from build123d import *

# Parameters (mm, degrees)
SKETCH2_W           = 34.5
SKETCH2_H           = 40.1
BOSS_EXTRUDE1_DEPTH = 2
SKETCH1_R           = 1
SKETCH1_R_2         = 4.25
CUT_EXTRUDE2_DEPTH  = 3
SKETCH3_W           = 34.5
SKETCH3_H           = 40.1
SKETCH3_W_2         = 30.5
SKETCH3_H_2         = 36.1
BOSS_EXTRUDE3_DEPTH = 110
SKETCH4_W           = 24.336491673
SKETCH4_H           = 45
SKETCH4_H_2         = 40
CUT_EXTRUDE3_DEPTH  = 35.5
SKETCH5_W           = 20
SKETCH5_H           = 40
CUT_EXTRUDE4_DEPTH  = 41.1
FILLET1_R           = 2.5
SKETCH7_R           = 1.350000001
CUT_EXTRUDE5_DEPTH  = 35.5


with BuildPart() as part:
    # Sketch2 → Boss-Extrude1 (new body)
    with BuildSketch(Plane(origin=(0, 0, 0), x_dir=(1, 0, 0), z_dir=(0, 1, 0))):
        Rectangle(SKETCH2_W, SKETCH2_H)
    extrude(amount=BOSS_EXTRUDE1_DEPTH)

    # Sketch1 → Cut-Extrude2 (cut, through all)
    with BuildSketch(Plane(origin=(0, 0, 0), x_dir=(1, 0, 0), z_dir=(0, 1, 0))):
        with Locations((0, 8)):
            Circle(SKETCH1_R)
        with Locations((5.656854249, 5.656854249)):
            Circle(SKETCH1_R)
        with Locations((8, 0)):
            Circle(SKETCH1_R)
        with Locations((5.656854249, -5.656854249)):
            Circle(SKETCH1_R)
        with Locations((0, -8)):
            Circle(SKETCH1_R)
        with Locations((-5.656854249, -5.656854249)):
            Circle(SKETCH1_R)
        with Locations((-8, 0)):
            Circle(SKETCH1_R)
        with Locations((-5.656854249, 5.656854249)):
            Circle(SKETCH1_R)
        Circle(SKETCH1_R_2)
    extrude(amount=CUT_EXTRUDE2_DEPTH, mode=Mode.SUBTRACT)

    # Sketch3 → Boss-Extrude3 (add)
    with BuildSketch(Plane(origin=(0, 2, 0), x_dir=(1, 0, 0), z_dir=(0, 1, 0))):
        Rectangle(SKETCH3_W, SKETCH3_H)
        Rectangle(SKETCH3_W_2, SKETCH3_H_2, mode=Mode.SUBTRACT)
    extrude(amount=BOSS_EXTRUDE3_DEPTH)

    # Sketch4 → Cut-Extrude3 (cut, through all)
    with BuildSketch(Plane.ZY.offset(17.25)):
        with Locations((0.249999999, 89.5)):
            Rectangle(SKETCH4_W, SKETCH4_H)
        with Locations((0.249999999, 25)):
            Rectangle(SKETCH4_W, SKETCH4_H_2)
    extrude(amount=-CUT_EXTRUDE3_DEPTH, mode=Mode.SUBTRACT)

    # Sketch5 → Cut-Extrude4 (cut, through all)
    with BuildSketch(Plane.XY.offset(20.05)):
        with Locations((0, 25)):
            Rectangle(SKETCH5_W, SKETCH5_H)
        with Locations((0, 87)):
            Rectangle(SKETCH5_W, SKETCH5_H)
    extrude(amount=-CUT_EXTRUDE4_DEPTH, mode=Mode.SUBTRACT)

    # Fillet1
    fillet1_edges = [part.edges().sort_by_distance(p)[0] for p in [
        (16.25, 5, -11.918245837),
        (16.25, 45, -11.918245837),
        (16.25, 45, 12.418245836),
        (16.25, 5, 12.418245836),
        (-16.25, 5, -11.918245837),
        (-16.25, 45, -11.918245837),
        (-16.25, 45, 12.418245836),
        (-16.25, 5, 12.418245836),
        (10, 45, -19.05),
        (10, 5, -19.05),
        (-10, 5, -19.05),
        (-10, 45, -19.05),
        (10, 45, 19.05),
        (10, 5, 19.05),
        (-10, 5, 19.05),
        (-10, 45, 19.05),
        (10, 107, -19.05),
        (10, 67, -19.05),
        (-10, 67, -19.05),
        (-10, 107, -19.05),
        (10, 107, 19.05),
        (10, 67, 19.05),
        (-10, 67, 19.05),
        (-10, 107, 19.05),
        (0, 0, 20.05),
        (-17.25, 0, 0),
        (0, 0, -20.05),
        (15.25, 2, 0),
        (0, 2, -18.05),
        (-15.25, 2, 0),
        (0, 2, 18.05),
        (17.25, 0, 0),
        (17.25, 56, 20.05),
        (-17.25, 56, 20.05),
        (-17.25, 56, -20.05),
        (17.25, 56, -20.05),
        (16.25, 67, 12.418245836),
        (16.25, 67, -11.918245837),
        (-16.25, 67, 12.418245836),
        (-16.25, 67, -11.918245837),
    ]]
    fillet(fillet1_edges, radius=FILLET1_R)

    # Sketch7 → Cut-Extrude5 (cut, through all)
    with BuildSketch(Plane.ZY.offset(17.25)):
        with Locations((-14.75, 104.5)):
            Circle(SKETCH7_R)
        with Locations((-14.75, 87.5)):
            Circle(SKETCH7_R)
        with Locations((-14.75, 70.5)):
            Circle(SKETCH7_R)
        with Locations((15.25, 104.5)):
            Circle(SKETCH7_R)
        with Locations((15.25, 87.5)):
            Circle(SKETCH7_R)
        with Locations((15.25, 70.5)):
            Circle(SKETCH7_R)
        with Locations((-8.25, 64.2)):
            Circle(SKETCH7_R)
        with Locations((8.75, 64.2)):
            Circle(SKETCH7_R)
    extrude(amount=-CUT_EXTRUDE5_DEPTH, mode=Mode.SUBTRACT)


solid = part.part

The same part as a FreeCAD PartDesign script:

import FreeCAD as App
import Part
import Sketcher


def edges_at(feature, points):
    """Names of the edges that pass closest to the given points."""
    edges = feature.Shape.Edges
    near = lambda p: min(range(len(edges)), key=lambda i: edges[i].distToShape(Part.Vertex(*p))[0])
    return sorted({f"Edge{near(p) + 1}" for p in points})

doc = App.newDocument("Part")
body = doc.addObject("PartDesign::Body", "Body")

# Sketch on XZ plane
sketch1 = body.newObject("Sketcher::SketchObject", "Sketch")
sketch1.AttachmentSupport = (doc.getObject("XZ_Plane"), [""])
sketch1.MapMode = "FlatFace"
sketch1.addGeometry([
    Part.LineSegment(App.Vector(-17.25, -20.05, 0), App.Vector(-17.25, 20.05, 0)),
    Part.LineSegment(App.Vector(-17.25, 20.05, 0), App.Vector(17.25, 20.05, 0)),
    Part.LineSegment(App.Vector(17.25, 20.05, 0), App.Vector(17.25, -20.05, 0)),
    Part.LineSegment(App.Vector(17.25, -20.05, 0), App.Vector(-17.25, -20.05, 0)),
], False)
sketch1.addConstraint([
    Sketcher.Constraint("Coincident", 0, 2, 1, 1),
    Sketcher.Constraint("Coincident", 1, 2, 2, 1),
    Sketcher.Constraint("Coincident", 2, 2, 3, 1),
    Sketcher.Constraint("Coincident", 3, 2, 0, 1),
    Sketcher.Constraint("Vertical", 0),
    Sketcher.Constraint("Horizontal", 1),
    Sketcher.Constraint("Vertical", 2),
    Sketcher.Constraint("Horizontal", 3),
    Sketcher.Constraint("Symmetric", 0, 2, 2, 2, -1, 1),
    Sketcher.Constraint("DistanceX", 1, 1, 1, 2, 34.5),
    Sketcher.Constraint("DistanceY", 0, 1, 0, 2, 40.1),
])
pad1 = body.newObject("PartDesign::Pad", "Pad")
pad1.Profile = sketch1
pad1.Length = 2
pad1.Reversed = True

# Sketch on XZ plane
sketch2 = body.newObject("Sketcher::SketchObject", "Sketch001")
sketch2.AttachmentSupport = (doc.getObject("XZ_Plane"), [""])
sketch2.MapMode = "FlatFace"
sketch2.addGeometry([
    Part.Circle(App.Vector(0, -8, 0), App.Vector(0, 0, 1), 1),  # 0
    Part.Circle(App.Vector(5.656854, -5.656854, 0), App.Vector(0, 0, 1), 1),  # 1
    Part.Circle(App.Vector(8, 0, 0), App.Vector(0, 0, 1), 1),  # 2
    Part.Circle(App.Vector(5.656854, 5.656854, 0), App.Vector(0, 0, 1), 1),  # 3
    Part.Circle(App.Vector(0, 8, 0), App.Vector(0, 0, 1), 1),  # 4
    Part.Circle(App.Vector(-5.656854, 5.656854, 0), App.Vector(0, 0, 1), 1),  # 5
    Part.Circle(App.Vector(-8, 0, 0), App.Vector(0, 0, 1), 1),  # 6
    Part.Circle(App.Vector(-5.656854, -5.656854, 0), App.Vector(0, 0, 1), 1),  # 7
    Part.Circle(App.Vector(0, 0, 0), App.Vector(0, 0, 1), 4.25),  # 8
], False)
sketch2.addConstraint([
    Sketcher.Constraint("Coincident", 8, 3, -1, 1),
    Sketcher.Constraint("Equal", 0, 1),
    Sketcher.Constraint("Equal", 1, 2),
    Sketcher.Constraint("Equal", 2, 3),
    Sketcher.Constraint("Equal", 3, 4),
    Sketcher.Constraint("Equal", 4, 5),
    Sketcher.Constraint("Equal", 5, 6),
    Sketcher.Constraint("Equal", 6, 7),
    Sketcher.Constraint("Symmetric", 0, 3, 4, 3, -1, 1),
    Sketcher.Constraint("Symmetric", 1, 3, 5, 3, -1, 1),
    Sketcher.Constraint("Symmetric", 2, 3, 6, 3, -1, 1),
    Sketcher.Constraint("Symmetric", 3, 3, 7, 3, -1, 1),
    Sketcher.Constraint("Symmetric", 3, 3, 5, 3, -2),
    Sketcher.Constraint("PointOnObject", 0, 3, -2),
    Sketcher.Constraint("PointOnObject", 2, 3, -1),
    Sketcher.Constraint("Diameter", 0, 2.0),
    Sketcher.Constraint("Diameter", 8, 8.5),
    Sketcher.Constraint("DistanceY", 0, 3, -1, 1, 8.0),
    Sketcher.Constraint("DistanceX", -1, 1, 2, 3, 8.0),
    Sketcher.Constraint("DistanceY", 1, 3, 3, 3, 11.313708),
    Sketcher.Constraint("DistanceX", 5, 3, 3, 3, 11.313708),
])
pocket1 = body.newObject("PartDesign::Pocket", "Pocket")
pocket1.Profile = sketch2
pocket1.Type = "ThroughAll"

# Sketch on XZ plane
sketch3 = body.newObject("Sketcher::SketchObject", "Sketch002")
sketch3.AttachmentSupport = (doc.getObject("XZ_Plane"), [""])
sketch3.MapMode = "FlatFace"
sketch3.AttachmentOffset = App.Placement(App.Vector(0, 0, -2), App.Rotation())
sketch3.addGeometry([
    Part.LineSegment(App.Vector(-17.25, -20.05, 0), App.Vector(-17.25, 20.05, 0)),  # 0
    Part.LineSegment(App.Vector(-17.25, 20.05, 0), App.Vector(17.25, 20.05, 0)),  # 1
    Part.LineSegment(App.Vector(17.25, 20.05, 0), App.Vector(17.25, -20.05, 0)),  # 2
    Part.LineSegment(App.Vector(17.25, -20.05, 0), App.Vector(-17.25, -20.05, 0)),  # 3
    Part.LineSegment(App.Vector(15.25, 18.05, 0), App.Vector(-15.25, 18.05, 0)),  # 4
    Part.LineSegment(App.Vector(-15.25, 18.05, 0), App.Vector(-15.25, -18.05, 0)),  # 5
    Part.LineSegment(App.Vector(-15.25, -18.05, 0), App.Vector(15.25, -18.05, 0)),  # 6
    Part.LineSegment(App.Vector(15.25, -18.05, 0), App.Vector(15.25, 18.05, 0)),  # 7
], False)
sketch3.addConstraint([
    Sketcher.Constraint("Coincident", 0, 2, 1, 1),
    Sketcher.Constraint("Coincident", 1, 2, 2, 1),
    Sketcher.Constraint("Coincident", 2, 2, 3, 1),
    Sketcher.Constraint("Coincident", 3, 2, 0, 1),
    Sketcher.Constraint("Coincident", 4, 2, 5, 1),
    Sketcher.Constraint("Coincident", 5, 2, 6, 1),
    Sketcher.Constraint("Coincident", 6, 2, 7, 1),
    Sketcher.Constraint("Coincident", 7, 2, 4, 1),
    Sketcher.Constraint("Vertical", 0),
    Sketcher.Constraint("Horizontal", 1),
    Sketcher.Constraint("Vertical", 2),
    Sketcher.Constraint("Horizontal", 3),
    Sketcher.Constraint("Horizontal", 4),
    Sketcher.Constraint("Vertical", 5),
    Sketcher.Constraint("Horizontal", 6),
    Sketcher.Constraint("Vertical", 7),
    Sketcher.Constraint("Symmetric", 0, 2, 2, 2, -1, 1),
    Sketcher.Constraint("Symmetric", 4, 2, 6, 2, -1, 1),
    Sketcher.Constraint("DistanceX", 1, 1, 1, 2, 34.5),
    Sketcher.Constraint("DistanceX", 4, 2, 4, 1, 30.5),
    Sketcher.Constraint("DistanceY", 0, 1, 0, 2, 40.1),
    Sketcher.Constraint("DistanceY", 5, 2, 5, 1, 36.1),
])
pad2 = body.newObject("PartDesign::Pad", "Pad001")
pad2.Profile = sketch3
pad2.Length = 110
pad2.Reversed = True

# Sketch on YZ plane
sketch4 = body.newObject("Sketcher::SketchObject", "Sketch003")
sketch4.AttachmentSupport = (doc.getObject("YZ_Plane"), [""])
sketch4.MapMode = "FlatFace"
sketch4.AttachmentOffset = App.Placement(App.Vector(0, 0, -17.25), App.Rotation())
sketch4.addGeometry([
    Part.LineSegment(App.Vector(112, -11.918246, 0), App.Vector(67, -11.918246, 0)),  # 0
    Part.LineSegment(App.Vector(67, -11.918246, 0), App.Vector(67, 12.418246, 0)),  # 1
    Part.LineSegment(App.Vector(67, 12.418246, 0), App.Vector(112, 12.418246, 0)),  # 2
    Part.LineSegment(App.Vector(112, 12.418246, 0), App.Vector(112, -11.918246, 0)),  # 3
    Part.LineSegment(App.Vector(45, -11.918246, 0), App.Vector(5, -11.918246, 0)),  # 4
    Part.LineSegment(App.Vector(5, -11.918246, 0), App.Vector(5, 12.418246, 0)),  # 5
    Part.LineSegment(App.Vector(5, 12.418246, 0), App.Vector(45, 12.418246, 0)),  # 6
    Part.LineSegment(App.Vector(45, 12.418246, 0), App.Vector(45, -11.918246, 0)),  # 7
], False)
sketch4.addConstraint([
    Sketcher.Constraint("Coincident", 0, 2, 1, 1),
    Sketcher.Constraint("Coincident", 1, 2, 2, 1),
    Sketcher.Constraint("Coincident", 2, 2, 3, 1),
    Sketcher.Constraint("Coincident", 3, 2, 0, 1),
    Sketcher.Constraint("Coincident", 4, 2, 5, 1),
    Sketcher.Constraint("Coincident", 5, 2, 6, 1),
    Sketcher.Constraint("Coincident", 6, 2, 7, 1),
    Sketcher.Constraint("Coincident", 7, 2, 4, 1),
    Sketcher.Constraint("Horizontal", 0),
    Sketcher.Constraint("Vertical", 1),
    Sketcher.Constraint("Horizontal", 2),
    Sketcher.Constraint("Vertical", 3),
    Sketcher.Constraint("Horizontal", 4),
    Sketcher.Constraint("Vertical", 5),
    Sketcher.Constraint("Horizontal", 6),
    Sketcher.Constraint("Vertical", 7),
    Sketcher.Constraint("Horizontal", 3, 2, 4, 2),
    Sketcher.Constraint("Horizontal", 2, 2, 5, 2),
    Sketcher.Constraint("DistanceX", 0, 2, 0, 1, 45.0),
    Sketcher.Constraint("DistanceX", 4, 2, 4, 1, 40.0),
    Sketcher.Constraint("DistanceX", -1, 1, 0, 2, 67.0),
    Sketcher.Constraint("DistanceX", -1, 1, 4, 2, 5.0),
    Sketcher.Constraint("DistanceY", 1, 1, 1, 2, 24.336492),
    Sketcher.Constraint("DistanceY", 0, 2, -1, 1, 11.918246),
])
pocket2 = body.newObject("PartDesign::Pocket", "Pocket001")
pocket2.Profile = sketch4
pocket2.Type = "ThroughAll"
pocket2.Reversed = True

# Sketch on XY plane
sketch5 = body.newObject("Sketcher::SketchObject", "Sketch004")
sketch5.AttachmentSupport = (doc.getObject("XY_Plane"), [""])
sketch5.MapMode = "FlatFace"
sketch5.AttachmentOffset = App.Placement(App.Vector(0, 0, 20.05), App.Rotation())
sketch5.addGeometry([
    Part.LineSegment(App.Vector(-10, 45, 0), App.Vector(-10, 5, 0)),  # 0
    Part.LineSegment(App.Vector(-10, 5, 0), App.Vector(10, 5, 0)),  # 1
    Part.LineSegment(App.Vector(10, 5, 0), App.Vector(10, 45, 0)),  # 2
    Part.LineSegment(App.Vector(10, 45, 0), App.Vector(-10, 45, 0)),  # 3
    Part.LineSegment(App.Vector(-10, 107, 0), App.Vector(-10, 67, 0)),  # 4
    Part.LineSegment(App.Vector(-10, 67, 0), App.Vector(10, 67, 0)),  # 5
    Part.LineSegment(App.Vector(10, 67, 0), App.Vector(10, 107, 0)),  # 6
    Part.LineSegment(App.Vector(10, 107, 0), App.Vector(-10, 107, 0)),  # 7
], False)
sketch5.addConstraint([
    Sketcher.Constraint("Coincident", 0, 2, 1, 1),
    Sketcher.Constraint("Coincident", 1, 2, 2, 1),
    Sketcher.Constraint("Coincident", 2, 2, 3, 1),
    Sketcher.Constraint("Coincident", 3, 2, 0, 1),
    Sketcher.Constraint("Coincident", 4, 2, 5, 1),
    Sketcher.Constraint("Coincident", 5, 2, 6, 1),
    Sketcher.Constraint("Coincident", 6, 2, 7, 1),
    Sketcher.Constraint("Coincident", 7, 2, 4, 1),
    Sketcher.Constraint("Vertical", 0),
    Sketcher.Constraint("Horizontal", 1),
    Sketcher.Constraint("Vertical", 2),
    Sketcher.Constraint("Horizontal", 3),
    Sketcher.Constraint("Vertical", 4),
    Sketcher.Constraint("Horizontal", 5),
    Sketcher.Constraint("Vertical", 6),
    Sketcher.Constraint("Horizontal", 7),
    Sketcher.Constraint("Vertical", 3, 2, 4, 2),
    Sketcher.Constraint("Vertical", 2, 2, 5, 2),
    Sketcher.Constraint("Equal", 2, 4),
    Sketcher.Constraint("DistanceX", 1, 1, 1, 2, 20.0),
    Sketcher.Constraint("DistanceY", 0, 2, 0, 1, 40.0),
    Sketcher.Constraint("DistanceX", 0, 2, -1, 1, 10.0),
    Sketcher.Constraint("DistanceY", -1, 1, 0, 2, 5.0),
    Sketcher.Constraint("DistanceY", -1, 1, 4, 2, 67.0),
])
pocket3 = body.newObject("PartDesign::Pocket", "Pocket002")
pocket3.Profile = sketch5
pocket3.Type = "ThroughAll"
doc.recompute()

fillet = body.newObject("PartDesign::Fillet", "Fillet")
fillet.Base = (pocket3, edges_at(pocket3, [
    (16.25, 5, -11.918),
    (16.25, 45, -11.918),
    (16.25, 45, 12.418),
    (16.25, 5, 12.418),
    (-16.25, 5, -11.918),
    (-16.25, 45, -11.918),
    (-16.25, 45, 12.418),
    (-16.25, 5, 12.418),
    (10, 45, -19.05),
    (10, 5, -19.05),
    (-10, 5, -19.05),
    (-10, 45, -19.05),
    (10, 45, 19.05),
    (10, 5, 19.05),
    (-10, 5, 19.05),
    (-10, 45, 19.05),
    (10, 107, -19.05),
    (10, 67, -19.05),
    (-10, 67, -19.05),
    (-10, 107, -19.05),
    (10, 107, 19.05),
    (10, 67, 19.05),
    (-10, 67, 19.05),
    (-10, 107, 19.05),
    (0, 0, 20.05),
    (-17.25, 0, 0),
    (0, 0, -20.05),
    (15.25, 2, 0),
    (0, 2, -18.05),
    (-15.25, 2, 0),
    (0, 2, 18.05),
    (17.25, 0, 0),
    (17.25, 56, 20.05),
    (-17.25, 56, 20.05),
    (-17.25, 56, -20.05),
    (17.25, 56, -20.05),
    (16.25, 67, 12.418),
    (16.25, 67, -11.918),
    (-16.25, 67, 12.418),
    (-16.25, 67, -11.918),
]))
fillet.Radius = 2.5

# Sketch on YZ plane
sketch6 = body.newObject("Sketcher::SketchObject", "Sketch005")
sketch6.AttachmentSupport = (doc.getObject("YZ_Plane"), [""])
sketch6.MapMode = "FlatFace"
sketch6.AttachmentOffset = App.Placement(App.Vector(0, 0, -17.25), App.Rotation())
sketch6.addGeometry([
    Part.Circle(App.Vector(104.5, -14.75, 0), App.Vector(0, 0, 1), 1.35),  # 0
    Part.Circle(App.Vector(87.5, -14.75, 0), App.Vector(0, 0, 1), 1.35),  # 1
    Part.Circle(App.Vector(70.5, -14.75, 0), App.Vector(0, 0, 1), 1.35),  # 2
    Part.Circle(App.Vector(104.5, 15.25, 0), App.Vector(0, 0, 1), 1.35),  # 3
    Part.Circle(App.Vector(87.5, 15.25, 0), App.Vector(0, 0, 1), 1.35),  # 4
    Part.Circle(App.Vector(70.5, 15.25, 0), App.Vector(0, 0, 1), 1.35),  # 5
    Part.Circle(App.Vector(64.2, -8.25, 0), App.Vector(0, 0, 1), 1.35),  # 6
    Part.Circle(App.Vector(64.2, 8.75, 0), App.Vector(0, 0, 1), 1.35),  # 7
], False)
sketch6.addConstraint([
    Sketcher.Constraint("Equal", 0, 1),
    Sketcher.Constraint("Equal", 1, 2),
    Sketcher.Constraint("Equal", 2, 3),
    Sketcher.Constraint("Equal", 3, 4),
    Sketcher.Constraint("Equal", 4, 5),
    Sketcher.Constraint("Equal", 5, 6),
    Sketcher.Constraint("Equal", 6, 7),
    Sketcher.Constraint("Horizontal", 0, 3, 1, 3),
    Sketcher.Constraint("Horizontal", 1, 3, 2, 3),
    Sketcher.Constraint("Horizontal", 3, 3, 4, 3),
    Sketcher.Constraint("Horizontal", 4, 3, 5, 3),
    Sketcher.Constraint("Vertical", 0, 3, 3, 3),
    Sketcher.Constraint("Vertical", 1, 3, 4, 3),
    Sketcher.Constraint("Vertical", 2, 3, 5, 3),
    Sketcher.Constraint("Vertical", 6, 3, 7, 3),
    Sketcher.Constraint("Diameter", 0, 2.7),
    Sketcher.Constraint("DistanceX", 1, 3, 0, 3, 17.0),
    Sketcher.Constraint("DistanceX", 2, 3, 1, 3, 17.0),
    Sketcher.Constraint("DistanceY", 0, 3, 3, 3, 30.0),
    Sketcher.Constraint("DistanceY", 6, 3, 7, 3, 17.0),
    Sketcher.Constraint("DistanceX", -1, 1, 0, 3, 104.5),
    Sketcher.Constraint("DistanceX", -1, 1, 6, 3, 64.2),
    Sketcher.Constraint("DistanceY", 2, 3, 6, 3, 6.5),
    Sketcher.Constraint("DistanceY", 0, 3, -1, 1, 14.75),
])
pocket4 = body.newObject("PartDesign::Pocket", "Pocket003")
pocket4.Profile = sketch6
pocket4.Type = "ThroughAll"
pocket4.Reversed = True

doc.recompute()
